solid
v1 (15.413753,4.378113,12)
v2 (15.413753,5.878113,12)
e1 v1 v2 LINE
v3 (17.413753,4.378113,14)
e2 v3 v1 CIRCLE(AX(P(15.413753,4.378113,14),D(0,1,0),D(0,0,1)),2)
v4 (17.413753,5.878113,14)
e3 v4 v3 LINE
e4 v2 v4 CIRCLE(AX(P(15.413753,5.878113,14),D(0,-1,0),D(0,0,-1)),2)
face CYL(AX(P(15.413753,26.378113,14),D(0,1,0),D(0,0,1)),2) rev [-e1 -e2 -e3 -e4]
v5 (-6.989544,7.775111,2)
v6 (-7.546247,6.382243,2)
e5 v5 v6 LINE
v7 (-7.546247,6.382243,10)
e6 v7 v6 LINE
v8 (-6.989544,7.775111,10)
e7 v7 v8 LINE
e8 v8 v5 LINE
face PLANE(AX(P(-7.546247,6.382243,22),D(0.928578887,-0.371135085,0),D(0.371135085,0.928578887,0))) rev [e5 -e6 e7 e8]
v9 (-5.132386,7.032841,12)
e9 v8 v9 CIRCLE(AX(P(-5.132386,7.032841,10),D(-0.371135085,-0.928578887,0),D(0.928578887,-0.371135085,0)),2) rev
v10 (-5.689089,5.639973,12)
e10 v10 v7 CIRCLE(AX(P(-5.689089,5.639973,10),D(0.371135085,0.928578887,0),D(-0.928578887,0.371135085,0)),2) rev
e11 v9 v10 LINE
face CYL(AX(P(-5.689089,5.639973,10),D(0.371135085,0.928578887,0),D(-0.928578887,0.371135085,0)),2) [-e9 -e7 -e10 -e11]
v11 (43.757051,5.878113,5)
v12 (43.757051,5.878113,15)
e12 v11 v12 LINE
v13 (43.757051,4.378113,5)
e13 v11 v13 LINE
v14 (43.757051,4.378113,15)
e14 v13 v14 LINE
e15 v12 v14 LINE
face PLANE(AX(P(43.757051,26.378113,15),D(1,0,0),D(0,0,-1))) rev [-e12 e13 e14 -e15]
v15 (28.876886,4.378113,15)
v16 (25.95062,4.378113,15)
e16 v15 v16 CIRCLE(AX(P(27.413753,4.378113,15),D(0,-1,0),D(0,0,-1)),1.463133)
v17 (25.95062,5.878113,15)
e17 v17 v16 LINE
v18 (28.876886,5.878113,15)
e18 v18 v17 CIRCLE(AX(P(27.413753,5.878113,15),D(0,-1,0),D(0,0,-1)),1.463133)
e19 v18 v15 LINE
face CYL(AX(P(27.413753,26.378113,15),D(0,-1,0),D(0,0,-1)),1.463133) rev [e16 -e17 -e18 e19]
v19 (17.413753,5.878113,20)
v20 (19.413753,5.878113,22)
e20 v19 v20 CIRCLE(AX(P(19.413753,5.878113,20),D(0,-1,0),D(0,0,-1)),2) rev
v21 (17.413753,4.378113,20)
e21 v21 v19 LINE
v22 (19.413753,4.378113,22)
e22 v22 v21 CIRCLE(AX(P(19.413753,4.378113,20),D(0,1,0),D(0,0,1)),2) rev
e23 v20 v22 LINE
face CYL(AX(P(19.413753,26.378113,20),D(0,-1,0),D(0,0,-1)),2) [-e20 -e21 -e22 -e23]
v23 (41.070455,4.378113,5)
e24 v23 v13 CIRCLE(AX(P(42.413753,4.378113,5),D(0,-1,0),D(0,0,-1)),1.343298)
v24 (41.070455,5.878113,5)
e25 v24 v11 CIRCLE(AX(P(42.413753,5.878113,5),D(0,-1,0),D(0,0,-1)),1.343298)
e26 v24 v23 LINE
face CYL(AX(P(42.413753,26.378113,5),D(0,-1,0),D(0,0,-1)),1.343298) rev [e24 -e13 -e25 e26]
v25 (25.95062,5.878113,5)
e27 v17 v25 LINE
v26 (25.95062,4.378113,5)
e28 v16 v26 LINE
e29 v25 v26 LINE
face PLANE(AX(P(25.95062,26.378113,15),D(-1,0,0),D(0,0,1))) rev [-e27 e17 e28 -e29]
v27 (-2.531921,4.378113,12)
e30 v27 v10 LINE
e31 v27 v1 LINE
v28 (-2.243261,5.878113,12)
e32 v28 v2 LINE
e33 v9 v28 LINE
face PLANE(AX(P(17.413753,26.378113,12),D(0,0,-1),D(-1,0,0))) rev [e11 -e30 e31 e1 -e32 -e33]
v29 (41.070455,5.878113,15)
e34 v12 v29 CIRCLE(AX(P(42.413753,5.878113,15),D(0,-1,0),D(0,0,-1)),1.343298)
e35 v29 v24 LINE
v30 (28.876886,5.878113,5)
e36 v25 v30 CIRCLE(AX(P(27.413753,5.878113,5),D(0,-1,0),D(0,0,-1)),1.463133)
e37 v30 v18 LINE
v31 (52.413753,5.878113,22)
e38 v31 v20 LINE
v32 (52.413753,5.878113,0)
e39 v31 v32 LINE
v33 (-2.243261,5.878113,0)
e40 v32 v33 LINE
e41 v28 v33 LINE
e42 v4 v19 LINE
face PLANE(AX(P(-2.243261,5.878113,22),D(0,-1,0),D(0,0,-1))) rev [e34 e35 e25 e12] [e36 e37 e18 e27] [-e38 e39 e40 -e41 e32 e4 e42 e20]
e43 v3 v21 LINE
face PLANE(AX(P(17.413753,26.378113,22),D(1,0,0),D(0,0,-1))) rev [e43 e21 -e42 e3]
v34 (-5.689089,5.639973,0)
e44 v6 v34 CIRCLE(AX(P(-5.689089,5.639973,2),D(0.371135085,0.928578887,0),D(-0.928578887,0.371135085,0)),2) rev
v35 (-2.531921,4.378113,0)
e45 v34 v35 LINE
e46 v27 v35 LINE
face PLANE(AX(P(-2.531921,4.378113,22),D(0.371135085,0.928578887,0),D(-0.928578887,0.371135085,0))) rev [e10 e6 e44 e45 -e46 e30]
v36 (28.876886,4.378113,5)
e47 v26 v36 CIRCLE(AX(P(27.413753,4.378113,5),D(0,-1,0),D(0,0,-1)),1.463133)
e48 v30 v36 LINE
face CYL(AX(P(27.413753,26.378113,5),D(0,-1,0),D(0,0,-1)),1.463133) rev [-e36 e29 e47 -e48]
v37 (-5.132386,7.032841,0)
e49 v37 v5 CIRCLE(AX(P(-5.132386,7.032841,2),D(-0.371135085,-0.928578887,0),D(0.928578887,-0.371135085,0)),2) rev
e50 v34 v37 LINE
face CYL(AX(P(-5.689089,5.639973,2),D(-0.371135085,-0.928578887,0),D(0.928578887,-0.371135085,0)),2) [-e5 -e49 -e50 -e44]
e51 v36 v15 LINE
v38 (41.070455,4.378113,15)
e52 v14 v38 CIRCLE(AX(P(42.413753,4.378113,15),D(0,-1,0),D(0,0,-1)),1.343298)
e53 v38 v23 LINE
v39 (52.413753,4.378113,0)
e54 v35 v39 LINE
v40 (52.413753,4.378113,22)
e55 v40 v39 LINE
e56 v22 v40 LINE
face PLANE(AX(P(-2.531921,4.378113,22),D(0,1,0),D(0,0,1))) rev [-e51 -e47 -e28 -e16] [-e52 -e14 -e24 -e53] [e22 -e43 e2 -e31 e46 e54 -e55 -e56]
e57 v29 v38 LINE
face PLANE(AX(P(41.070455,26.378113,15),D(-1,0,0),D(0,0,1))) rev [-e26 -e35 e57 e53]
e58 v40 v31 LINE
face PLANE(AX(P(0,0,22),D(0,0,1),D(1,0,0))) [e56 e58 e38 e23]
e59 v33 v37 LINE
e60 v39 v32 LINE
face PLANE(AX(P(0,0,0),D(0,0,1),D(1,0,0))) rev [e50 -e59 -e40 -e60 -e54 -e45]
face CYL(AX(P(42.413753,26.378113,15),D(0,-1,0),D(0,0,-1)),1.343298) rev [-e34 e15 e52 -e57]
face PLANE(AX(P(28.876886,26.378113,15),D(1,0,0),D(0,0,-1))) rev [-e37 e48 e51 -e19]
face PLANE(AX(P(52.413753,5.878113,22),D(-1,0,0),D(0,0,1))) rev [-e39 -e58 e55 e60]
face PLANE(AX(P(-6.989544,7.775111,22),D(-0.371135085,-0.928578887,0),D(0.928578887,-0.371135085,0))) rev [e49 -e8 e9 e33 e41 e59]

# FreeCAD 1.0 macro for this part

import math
import FreeCAD as App
import Part
import Sketcher
from FreeCAD import Vector


def edges_at(feature, points):
    """Names of the edges that pass closest to the given points."""
    edges = feature.Shape.Edges
    near = lambda p: min(range(len(edges)), key=lambda i: edges[i].distToShape(Part.Vertex(*p))[0])
    return sorted({f"Edge{near(p) + 1}" for p in points})

doc = App.newDocument("Part")
body = doc.addObject("PartDesign::Body", "Body")

sketch1 = body.newObject("Sketcher::SketchObject", "Sketch")
sketch1.AttachmentSupport = (doc.getObject("XY_Plane"), [""])
sketch1.MapMode = "FlatFace"
sketch1.addGeometry(Part.LineSegment(Vector(-7.5, 6.4, 0), Vector(-2.5, 4.4, 0)), False)
sketch1.addGeometry(Part.LineSegment(Vector(-2.5, 4.4, 0), Vector(52.4, 4.4, 0)), False)
sketch1.addGeometry(Part.LineSegment(Vector(52.4, 4.4, 0), Vector(52.4, 5.9, 0)), False)
sketch1.addGeometry(Part.LineSegment(Vector(52.4, 5.9, 0), Vector(-2.2, 5.9, 0)), False)
sketch1.addGeometry(Part.LineSegment(Vector(-2.2, 5.9, 0), Vector(-7, 7.8, 0)), False)
sketch1.addGeometry(Part.LineSegment(Vector(-7, 7.8, 0), Vector(-7.5, 6.4, 0)), False)
sketch1.addConstraint(Sketcher.Constraint("Coincident", 0, 2, 1, 1))
sketch1.addConstraint(Sketcher.Constraint("Coincident", 1, 2, 2, 1))
sketch1.addConstraint(Sketcher.Constraint("Coincident", 2, 2, 3, 1))
sketch1.addConstraint(Sketcher.Constraint("Coincident", 3, 2, 4, 1))
sketch1.addConstraint(Sketcher.Constraint("Coincident", 4, 2, 5, 1))
sketch1.addConstraint(Sketcher.Constraint("Coincident", 5, 2, 0, 1))
sketch1.addConstraint(Sketcher.Constraint("Horizontal", 1))
sketch1.addConstraint(Sketcher.Constraint("Vertical", 2))
sketch1.addConstraint(Sketcher.Constraint("Horizontal", 3))
sketch1.addConstraint(Sketcher.Constraint("Parallel", 0, 4))
sketch1.addConstraint(Sketcher.Constraint("Perpendicular", 4, 5))
sketch1.addConstraint(Sketcher.Constraint("DistanceY", 2, 1, 2, 2, 1.5))
sketch1.addConstraint(Sketcher.Constraint("Distance", 0, 5.4))
sketch1.addConstraint(Sketcher.Constraint("Distance", 5, 1.5))
sketch1.addConstraint(Sketcher.Constraint("DistanceX", 5, 2, 2, 2, 59.96))
sketch1.addConstraint(Sketcher.Constraint("Distance", 4, 5.11134))
sketch1.addConstraint(Sketcher.Constraint("DistanceX", 0, 2, -1, 1, 2.531921))
sketch1.addConstraint(Sketcher.Constraint("DistanceY", -1, 1, 4, 2, 7.775111))
pad1 = body.newObject("PartDesign::Pad", "Pad")
pad1.Profile = sketch1
pad1.Length = 22

sketch2 = body.newObject("Sketcher::SketchObject", "Sketch001")
sketch2.AttachmentSupport = (doc.getObject("XZ_Plane"), [""])
sketch2.MapMode = "FlatFace"
sketch2.AttachmentOffset = App.Placement(Vector(0, 0, -4.378113), App.Rotation())
sketch2.addGeometry(Part.LineSegment(Vector(-14.9, 22, 0), Vector(-14.9, 12, 0)), False)
sketch2.addGeometry(Part.LineSegment(Vector(-14.9, 12, 0), Vector(17.4, 12, 0)), False)
sketch2.addGeometry(Part.LineSegment(Vector(17.4, 12, 0), Vector(17.4, 22, 0)), False)
sketch2.addGeometry(Part.LineSegment(Vector(17.4, 22, 0), Vector(-14.9, 22, 0)), False)
sketch2.addGeometry(Part.LineSegment(Vector(28.9, 5, 0), Vector(28.9, 15, 0)), False)
sketch2.addGeometry(Part.ArcOfCircle(Part.Circle(Vector(27.4, 15, 0), Vector(0, 0, 1), 1.5), math.radians(0), math.radians(180)), False)
sketch2.addGeometry(Part.LineSegment(Vector(26, 15, 0), Vector(26, 5, 0)), False)
sketch2.addGeometry(Part.ArcOfCircle(Part.Circle(Vector(27.4, 5, 0), Vector(0, 0, 1), 1.5), math.radians(-180), math.radians(0)), False)
sketch2.addGeometry(Part.LineSegment(Vector(43.8, 5, 0), Vector(43.8, 15, 0)), False)
sketch2.addGeometry(Part.ArcOfCircle(Part.Circle(Vector(42.4, 15, 0), Vector(0, 0, 1), 1.3), math.radians(0), math.radians(180)), False)
sketch2.addGeometry(Part.LineSegment(Vector(41.1, 15, 0), Vector(41.1, 5, 0)), False)
sketch2.addGeometry(Part.ArcOfCircle(Part.Circle(Vector(42.4, 5, 0), Vector(0, 0, 1), 1.3), math.radians(-180), math.radians(0)), False)
sketch2.addConstraint(Sketcher.Constraint("Coincident", 0, 2, 1, 1))
sketch2.addConstraint(Sketcher.Constraint("Coincident", 1, 2, 2, 1))
sketch2.addConstraint(Sketcher.Constraint("Coincident", 2, 2, 3, 1))
sketch2.addConstraint(Sketcher.Constraint("Coincident", 3, 2, 0, 1))
sketch2.addConstraint(Sketcher.Constraint("Tangent", 4, 2, 5, 1))
sketch2.addConstraint(Sketcher.Constraint("Tangent", 5, 2, 6, 1))
sketch2.addConstraint(Sketcher.Constraint("Tangent", 6, 2, 7, 1))
sketch2.addConstraint(Sketcher.Constraint("Tangent", 7, 2, 4, 1))
sketch2.addConstraint(Sketcher.Constraint("Tangent", 8, 2, 9, 1))
sketch2.addConstraint(Sketcher.Constraint("Tangent", 9, 2, 10, 1))
sketch2.addConstraint(Sketcher.Constraint("Tangent", 10, 2, 11, 1))
sketch2.addConstraint(Sketcher.Constraint("Tangent", 11, 2, 8, 1))
sketch2.addConstraint(Sketcher.Constraint("Vertical", 0))
sketch2.addConstraint(Sketcher.Constraint("Horizontal", 1))
sketch2.addConstraint(Sketcher.Constraint("Vertical", 2))
sketch2.addConstraint(Sketcher.Constraint("Horizontal", 3))
sketch2.addConstraint(Sketcher.Constraint("Vertical", 4))
sketch2.addConstraint(Sketcher.Constraint("Vertical", 6))
sketch2.addConstraint(Sketcher.Constraint("Vertical", 8))
sketch2.addConstraint(Sketcher.Constraint("Vertical", 10))
sketch2.addConstraint(Sketcher.Constraint("Horizontal", 5, 3, 9, 3))
sketch2.addConstraint(Sketcher.Constraint("Horizontal", 7, 3, 11, 3))
sketch2.addConstraint(Sketcher.Constraint("Equal", 2, 4))
sketch2.addConstraint(Sketcher.Constraint("DistanceY", 0, 2, 0, 1, 10.0))
sketch2.addConstraint(Sketcher.Constraint("DistanceY", -1, 1, 5, 3, 15.0))
sketch2.addConstraint(Sketcher.Constraint("DistanceY", -1, 1, 0, 2, 12.0))
sketch2.addConstraint(Sketcher.Constraint("DistanceX", 5, 3, 9, 3, 15.0))
sketch2.addConstraint(Sketcher.Constraint("DistanceX", 1, 2, 5, 3, 10.0))
sketch2.addConstraint(Sketcher.Constraint("Radius", 5, 1.463133))
sketch2.addConstraint(Sketcher.Constraint("Radius", 9, 1.343298))
sketch2.addConstraint(Sketcher.Constraint("DistanceX", 1, 1, 1, 2, 32.324703))
sketch2.addConstraint(Sketcher.Constraint("DistanceX", 0, 2, -1, 1, 14.910949))
pocket1 = body.newObject("PartDesign::Pocket", "Pocket")
pocket1.Profile = sketch2
pocket1.Length = 22
doc.recompute()

fillet = body.newObject("PartDesign::Fillet", "Fillet")
fillet.Base = (pocket1, edges_at(pocket1, [
    (17.414, 5.128, 22),
    (-7.268, 7.079, 12),
    (17.414, 5.128, 12),
    (-7.268, 7.079, 0),
]))
fillet.Radius = 2

doc.recompute()
